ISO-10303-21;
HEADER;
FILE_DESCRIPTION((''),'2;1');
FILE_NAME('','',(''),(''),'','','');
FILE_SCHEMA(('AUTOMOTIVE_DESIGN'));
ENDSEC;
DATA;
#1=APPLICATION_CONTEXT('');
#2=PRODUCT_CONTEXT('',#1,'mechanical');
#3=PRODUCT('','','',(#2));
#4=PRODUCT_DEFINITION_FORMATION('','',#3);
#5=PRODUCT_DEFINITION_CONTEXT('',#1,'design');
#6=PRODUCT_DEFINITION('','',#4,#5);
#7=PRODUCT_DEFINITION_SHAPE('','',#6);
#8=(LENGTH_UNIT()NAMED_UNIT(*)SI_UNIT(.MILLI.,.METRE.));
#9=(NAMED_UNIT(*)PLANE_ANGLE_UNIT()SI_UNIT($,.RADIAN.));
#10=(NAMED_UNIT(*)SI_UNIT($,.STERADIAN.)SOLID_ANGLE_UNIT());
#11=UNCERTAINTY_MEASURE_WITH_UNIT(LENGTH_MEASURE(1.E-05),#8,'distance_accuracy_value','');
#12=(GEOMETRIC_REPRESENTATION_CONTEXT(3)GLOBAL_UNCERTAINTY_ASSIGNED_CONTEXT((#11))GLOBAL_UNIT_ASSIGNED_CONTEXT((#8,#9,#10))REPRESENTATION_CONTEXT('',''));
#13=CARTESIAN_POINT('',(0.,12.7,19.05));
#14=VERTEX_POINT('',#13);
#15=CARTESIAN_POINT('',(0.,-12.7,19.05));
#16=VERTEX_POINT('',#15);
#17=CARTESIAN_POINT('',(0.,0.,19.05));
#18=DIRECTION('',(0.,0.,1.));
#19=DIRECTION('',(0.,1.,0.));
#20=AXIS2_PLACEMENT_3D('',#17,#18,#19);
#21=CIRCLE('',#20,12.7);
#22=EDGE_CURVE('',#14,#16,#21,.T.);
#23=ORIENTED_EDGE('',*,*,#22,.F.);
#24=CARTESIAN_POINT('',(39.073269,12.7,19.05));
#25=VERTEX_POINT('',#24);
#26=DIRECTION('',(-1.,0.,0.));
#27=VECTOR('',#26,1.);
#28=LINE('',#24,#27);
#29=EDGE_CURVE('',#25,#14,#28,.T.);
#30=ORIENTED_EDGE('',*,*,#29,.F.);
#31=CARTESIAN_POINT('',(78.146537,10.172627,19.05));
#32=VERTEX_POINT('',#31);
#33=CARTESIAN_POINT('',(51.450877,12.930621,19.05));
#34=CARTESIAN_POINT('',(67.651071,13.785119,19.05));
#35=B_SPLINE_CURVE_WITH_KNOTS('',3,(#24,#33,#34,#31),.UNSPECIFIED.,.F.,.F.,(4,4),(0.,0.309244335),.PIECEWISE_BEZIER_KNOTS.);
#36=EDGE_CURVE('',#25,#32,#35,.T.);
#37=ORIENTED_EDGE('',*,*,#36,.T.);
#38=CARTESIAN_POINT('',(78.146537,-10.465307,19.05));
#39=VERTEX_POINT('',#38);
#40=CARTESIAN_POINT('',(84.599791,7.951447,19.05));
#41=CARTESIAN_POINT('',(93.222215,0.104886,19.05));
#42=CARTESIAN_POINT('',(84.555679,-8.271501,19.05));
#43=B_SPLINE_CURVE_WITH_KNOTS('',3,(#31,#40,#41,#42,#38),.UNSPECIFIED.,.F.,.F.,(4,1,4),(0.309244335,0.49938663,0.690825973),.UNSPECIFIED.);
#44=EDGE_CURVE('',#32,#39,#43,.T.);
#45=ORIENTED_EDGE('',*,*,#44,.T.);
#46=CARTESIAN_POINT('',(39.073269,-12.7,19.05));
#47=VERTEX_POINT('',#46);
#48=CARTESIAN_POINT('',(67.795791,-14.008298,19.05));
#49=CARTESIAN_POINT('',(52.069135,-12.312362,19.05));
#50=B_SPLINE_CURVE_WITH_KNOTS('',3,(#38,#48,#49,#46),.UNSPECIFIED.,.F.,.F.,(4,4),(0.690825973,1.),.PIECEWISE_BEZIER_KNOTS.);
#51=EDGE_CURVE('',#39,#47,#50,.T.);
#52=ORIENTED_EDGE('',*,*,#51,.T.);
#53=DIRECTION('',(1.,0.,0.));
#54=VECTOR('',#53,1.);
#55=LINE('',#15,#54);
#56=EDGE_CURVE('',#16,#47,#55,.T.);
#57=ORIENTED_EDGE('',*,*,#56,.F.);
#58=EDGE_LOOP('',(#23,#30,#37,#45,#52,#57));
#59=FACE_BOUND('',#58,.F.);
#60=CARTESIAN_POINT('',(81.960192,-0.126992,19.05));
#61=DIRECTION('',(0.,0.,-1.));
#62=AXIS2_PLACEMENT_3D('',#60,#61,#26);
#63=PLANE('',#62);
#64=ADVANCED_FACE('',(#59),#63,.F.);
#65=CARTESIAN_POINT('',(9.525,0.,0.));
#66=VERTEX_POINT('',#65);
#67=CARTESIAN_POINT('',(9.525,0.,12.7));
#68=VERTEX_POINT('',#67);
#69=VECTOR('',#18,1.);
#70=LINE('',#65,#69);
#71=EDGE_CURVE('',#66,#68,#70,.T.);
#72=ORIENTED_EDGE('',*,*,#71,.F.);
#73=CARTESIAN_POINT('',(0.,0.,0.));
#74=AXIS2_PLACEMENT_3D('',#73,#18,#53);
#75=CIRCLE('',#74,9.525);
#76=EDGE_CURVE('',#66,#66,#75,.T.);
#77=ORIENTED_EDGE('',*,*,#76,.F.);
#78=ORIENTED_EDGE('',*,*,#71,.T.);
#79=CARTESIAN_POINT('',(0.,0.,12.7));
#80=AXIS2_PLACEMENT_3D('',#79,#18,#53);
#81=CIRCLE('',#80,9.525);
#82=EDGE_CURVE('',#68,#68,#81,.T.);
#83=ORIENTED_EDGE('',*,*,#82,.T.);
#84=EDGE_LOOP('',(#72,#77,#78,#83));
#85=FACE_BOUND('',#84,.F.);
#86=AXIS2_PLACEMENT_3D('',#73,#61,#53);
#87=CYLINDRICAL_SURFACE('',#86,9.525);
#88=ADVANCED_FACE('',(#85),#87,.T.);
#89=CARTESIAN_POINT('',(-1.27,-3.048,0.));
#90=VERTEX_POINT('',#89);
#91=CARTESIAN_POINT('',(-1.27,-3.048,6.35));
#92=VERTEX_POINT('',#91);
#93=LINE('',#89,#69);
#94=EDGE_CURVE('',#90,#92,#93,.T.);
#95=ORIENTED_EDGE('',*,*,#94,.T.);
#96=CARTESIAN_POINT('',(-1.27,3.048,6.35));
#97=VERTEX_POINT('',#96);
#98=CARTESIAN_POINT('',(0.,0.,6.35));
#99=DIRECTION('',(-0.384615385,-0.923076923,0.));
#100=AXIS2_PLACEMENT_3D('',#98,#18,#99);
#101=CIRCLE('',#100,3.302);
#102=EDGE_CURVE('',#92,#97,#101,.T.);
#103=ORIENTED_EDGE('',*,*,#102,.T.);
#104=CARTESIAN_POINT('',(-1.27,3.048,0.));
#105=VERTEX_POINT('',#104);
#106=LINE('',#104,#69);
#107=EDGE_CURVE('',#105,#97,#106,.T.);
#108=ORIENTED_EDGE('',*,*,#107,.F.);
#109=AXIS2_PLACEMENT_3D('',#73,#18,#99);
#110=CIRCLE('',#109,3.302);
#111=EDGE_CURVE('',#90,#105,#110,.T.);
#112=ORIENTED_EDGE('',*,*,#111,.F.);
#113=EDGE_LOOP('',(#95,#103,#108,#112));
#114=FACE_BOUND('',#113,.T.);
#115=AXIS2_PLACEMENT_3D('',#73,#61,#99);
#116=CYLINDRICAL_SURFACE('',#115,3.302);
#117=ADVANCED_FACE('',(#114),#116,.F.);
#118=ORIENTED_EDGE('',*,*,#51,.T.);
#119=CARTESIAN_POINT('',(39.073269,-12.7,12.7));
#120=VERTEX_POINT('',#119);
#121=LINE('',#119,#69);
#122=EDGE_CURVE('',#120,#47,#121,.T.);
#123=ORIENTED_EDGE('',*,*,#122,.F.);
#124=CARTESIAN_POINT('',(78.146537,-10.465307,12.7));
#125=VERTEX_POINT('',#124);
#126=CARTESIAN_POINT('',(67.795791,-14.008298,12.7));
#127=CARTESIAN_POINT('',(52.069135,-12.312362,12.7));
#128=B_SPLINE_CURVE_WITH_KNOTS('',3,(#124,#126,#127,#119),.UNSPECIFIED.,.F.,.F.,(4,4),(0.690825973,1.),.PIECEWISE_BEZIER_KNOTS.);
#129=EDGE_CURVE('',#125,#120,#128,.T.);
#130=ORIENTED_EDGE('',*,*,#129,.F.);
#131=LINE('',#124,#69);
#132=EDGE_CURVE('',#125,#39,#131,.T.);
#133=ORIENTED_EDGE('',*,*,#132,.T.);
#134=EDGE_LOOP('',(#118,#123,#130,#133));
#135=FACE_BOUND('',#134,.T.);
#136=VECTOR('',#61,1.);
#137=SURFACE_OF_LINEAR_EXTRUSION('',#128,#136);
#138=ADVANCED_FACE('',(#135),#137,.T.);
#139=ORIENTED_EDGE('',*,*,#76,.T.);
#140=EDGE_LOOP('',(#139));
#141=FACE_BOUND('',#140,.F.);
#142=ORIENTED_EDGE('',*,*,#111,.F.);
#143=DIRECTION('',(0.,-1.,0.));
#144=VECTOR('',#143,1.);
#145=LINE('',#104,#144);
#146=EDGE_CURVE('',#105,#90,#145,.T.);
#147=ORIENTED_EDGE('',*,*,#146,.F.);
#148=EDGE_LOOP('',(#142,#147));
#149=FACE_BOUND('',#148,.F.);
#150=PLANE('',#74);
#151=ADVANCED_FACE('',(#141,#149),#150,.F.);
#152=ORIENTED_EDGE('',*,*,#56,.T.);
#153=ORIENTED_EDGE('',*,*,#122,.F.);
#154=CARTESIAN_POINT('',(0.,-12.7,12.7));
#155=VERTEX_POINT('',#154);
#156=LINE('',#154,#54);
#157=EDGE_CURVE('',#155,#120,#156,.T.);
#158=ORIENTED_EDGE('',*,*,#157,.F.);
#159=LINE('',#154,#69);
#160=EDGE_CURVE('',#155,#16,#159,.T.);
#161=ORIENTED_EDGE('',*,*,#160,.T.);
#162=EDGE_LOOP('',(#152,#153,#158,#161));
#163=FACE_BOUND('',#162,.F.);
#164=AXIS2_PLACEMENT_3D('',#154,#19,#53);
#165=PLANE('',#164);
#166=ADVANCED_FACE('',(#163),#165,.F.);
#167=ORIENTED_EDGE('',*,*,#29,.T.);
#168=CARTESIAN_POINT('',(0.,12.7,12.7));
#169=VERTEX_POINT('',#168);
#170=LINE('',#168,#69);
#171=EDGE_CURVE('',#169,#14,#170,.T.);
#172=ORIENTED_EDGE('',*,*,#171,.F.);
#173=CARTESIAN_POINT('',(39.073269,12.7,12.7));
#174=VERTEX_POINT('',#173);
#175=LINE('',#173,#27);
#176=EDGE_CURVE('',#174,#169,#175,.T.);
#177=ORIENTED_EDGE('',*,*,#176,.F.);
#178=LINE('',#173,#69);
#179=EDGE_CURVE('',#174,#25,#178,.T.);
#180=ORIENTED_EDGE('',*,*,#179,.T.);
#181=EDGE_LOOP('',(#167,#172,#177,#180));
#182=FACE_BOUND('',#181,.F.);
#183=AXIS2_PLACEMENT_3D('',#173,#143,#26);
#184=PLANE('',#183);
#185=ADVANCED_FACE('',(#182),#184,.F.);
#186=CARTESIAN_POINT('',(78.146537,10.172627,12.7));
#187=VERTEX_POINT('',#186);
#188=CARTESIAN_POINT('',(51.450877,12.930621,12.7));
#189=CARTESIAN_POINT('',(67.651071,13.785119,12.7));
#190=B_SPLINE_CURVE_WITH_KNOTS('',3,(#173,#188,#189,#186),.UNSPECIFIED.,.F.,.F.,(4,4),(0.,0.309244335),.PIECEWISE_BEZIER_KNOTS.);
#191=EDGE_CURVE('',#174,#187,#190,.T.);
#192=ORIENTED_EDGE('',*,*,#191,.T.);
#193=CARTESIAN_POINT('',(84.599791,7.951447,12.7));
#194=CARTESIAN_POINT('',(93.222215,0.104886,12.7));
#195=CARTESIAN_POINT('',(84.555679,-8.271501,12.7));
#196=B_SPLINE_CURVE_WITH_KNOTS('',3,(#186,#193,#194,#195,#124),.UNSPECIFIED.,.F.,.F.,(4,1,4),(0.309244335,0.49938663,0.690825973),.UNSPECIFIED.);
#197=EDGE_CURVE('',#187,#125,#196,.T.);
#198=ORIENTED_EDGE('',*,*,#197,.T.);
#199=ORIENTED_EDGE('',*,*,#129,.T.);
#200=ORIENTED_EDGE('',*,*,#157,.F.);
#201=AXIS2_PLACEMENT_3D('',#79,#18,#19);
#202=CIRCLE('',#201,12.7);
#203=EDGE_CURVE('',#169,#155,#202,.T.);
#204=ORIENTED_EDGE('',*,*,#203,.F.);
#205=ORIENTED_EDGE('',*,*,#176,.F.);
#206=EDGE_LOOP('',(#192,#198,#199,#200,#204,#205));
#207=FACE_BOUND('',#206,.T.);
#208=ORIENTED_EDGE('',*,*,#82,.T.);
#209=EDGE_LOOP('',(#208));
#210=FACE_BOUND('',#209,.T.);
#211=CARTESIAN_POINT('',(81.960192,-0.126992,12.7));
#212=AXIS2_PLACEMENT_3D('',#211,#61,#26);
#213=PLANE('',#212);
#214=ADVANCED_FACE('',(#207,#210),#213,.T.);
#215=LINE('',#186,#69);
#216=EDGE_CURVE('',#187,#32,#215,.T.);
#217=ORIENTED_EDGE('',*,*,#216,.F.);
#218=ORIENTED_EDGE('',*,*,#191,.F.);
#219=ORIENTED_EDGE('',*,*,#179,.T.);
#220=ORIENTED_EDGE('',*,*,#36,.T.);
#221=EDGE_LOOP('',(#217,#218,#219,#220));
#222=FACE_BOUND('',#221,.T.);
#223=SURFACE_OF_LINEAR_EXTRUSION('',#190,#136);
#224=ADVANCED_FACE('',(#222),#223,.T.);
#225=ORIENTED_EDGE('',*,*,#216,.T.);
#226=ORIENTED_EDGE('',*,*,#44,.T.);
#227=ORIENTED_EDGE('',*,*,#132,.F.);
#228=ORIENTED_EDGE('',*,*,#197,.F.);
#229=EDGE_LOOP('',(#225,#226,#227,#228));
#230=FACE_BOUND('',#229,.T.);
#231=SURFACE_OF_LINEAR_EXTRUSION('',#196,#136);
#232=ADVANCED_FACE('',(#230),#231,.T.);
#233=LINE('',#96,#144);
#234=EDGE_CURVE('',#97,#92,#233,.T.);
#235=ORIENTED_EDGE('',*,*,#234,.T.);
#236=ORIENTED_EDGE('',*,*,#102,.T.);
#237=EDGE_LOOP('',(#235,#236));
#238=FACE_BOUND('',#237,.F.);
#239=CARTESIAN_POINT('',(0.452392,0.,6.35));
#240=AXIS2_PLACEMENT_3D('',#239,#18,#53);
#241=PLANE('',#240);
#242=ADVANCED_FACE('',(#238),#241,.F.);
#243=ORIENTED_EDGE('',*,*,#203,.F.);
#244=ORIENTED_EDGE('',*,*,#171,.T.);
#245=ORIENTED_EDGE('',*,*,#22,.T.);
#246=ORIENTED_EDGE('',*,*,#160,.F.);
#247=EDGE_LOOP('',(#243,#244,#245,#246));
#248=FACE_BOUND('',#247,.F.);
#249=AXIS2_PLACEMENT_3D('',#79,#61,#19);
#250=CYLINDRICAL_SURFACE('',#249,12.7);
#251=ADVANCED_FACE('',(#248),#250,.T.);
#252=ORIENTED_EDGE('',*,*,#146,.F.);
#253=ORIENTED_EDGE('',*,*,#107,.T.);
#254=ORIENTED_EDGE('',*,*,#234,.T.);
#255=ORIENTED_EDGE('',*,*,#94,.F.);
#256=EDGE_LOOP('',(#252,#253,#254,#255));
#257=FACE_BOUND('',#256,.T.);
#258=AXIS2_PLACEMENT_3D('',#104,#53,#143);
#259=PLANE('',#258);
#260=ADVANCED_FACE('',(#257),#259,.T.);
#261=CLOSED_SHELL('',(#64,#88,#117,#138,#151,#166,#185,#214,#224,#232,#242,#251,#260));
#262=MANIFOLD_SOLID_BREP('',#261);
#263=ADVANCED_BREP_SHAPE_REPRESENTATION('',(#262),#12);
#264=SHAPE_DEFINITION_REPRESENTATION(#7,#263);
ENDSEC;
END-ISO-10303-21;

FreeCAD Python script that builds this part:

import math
import FreeCAD as App
import Part
import Sketcher
Q = App.Units.Quantity

doc = App.newDocument("Part")
body = doc.addObject("PartDesign::Body", "Body")

# Sketch on XY plane
sketch1 = body.newObject("Sketcher::SketchObject", "Sketch")
sketch1.AttachmentSupport = (doc.getObject("XY_Plane"), [""])
sketch1.MapMode = "FlatFace"
sketch1.addGeometry(Part.Circle(App.Vector(0, 0, 0), App.Vector(0, 0, 1), 9.525), False)
sketch1.addConstraint([
    Sketcher.Constraint("Coincident", 0, 3, -1, 1),
    Sketcher.Constraint("Diameter", 0, Q("0.75 in")),
])
pad1 = body.newObject("PartDesign::Pad", "Pad")
pad1.Profile = sketch1
pad1.Length = Q("0.5 in")

# Sketch on XY plane
sketch2 = body.newObject("Sketcher::SketchObject", "Sketch001")
sketch2.AttachmentSupport = (doc.getObject("XY_Plane"), [""])
sketch2.MapMode = "FlatFace"
sketch2.addGeometry([
    Part.LineSegment(App.Vector(-1.27, 3.048, 0), App.Vector(-1.27, -3.048, 0)),
    Part.ArcOfCircle(Part.Circle(App.Vector(0, 0, 0), App.Vector(0, 0, 1), 3.302), math.radians(-112.619865), math.radians(112.619865)),
], False)
sketch2.addConstraint([
    Sketcher.Constraint("Coincident", 0, 1, 1, 2),
    Sketcher.Constraint("Coincident", 1, 1, 0, 2),
    Sketcher.Constraint("Vertical", 0),
    Sketcher.Constraint("Coincident", 1, 3, -1, 1),
    Sketcher.Constraint("Radius", 1, Q("0.13 in")),
    Sketcher.Constraint("DistanceY", 0, 2, 0, 1, Q("0.24 in")),
])
pocket1 = body.newObject("PartDesign::Pocket", "Pocket")
pocket1.Profile = sketch2
pocket1.Length = Q("0.25 in")
pocket1.Reversed = True

# Sketch on XY plane
sketch3 = body.newObject("Sketcher::SketchObject", "Sketch002")
sketch3.AttachmentSupport = (doc.getObject("XY_Plane"), [""])
sketch3.MapMode = "FlatFace"
sketch3.AttachmentOffset = App.Placement(App.Vector(0, 0, 0.5 * 25.4), App.Rotation())
sketch3.addGeometry([
    Part.BSplineCurve([App.Vector(78.146537, 10.172627, 0), App.Vector(84.599791, 7.951447, 0), App.Vector(93.222215, 0.104886, 0), App.Vector(84.555679, -8.271501, 0), App.Vector(78.146537, -10.465307, 0)], [4, 1, 4], [0.309244335, 0.49938663, 0.690825973], False, 3, [1, 1, 1, 1, 1], False),  # 0
    Part.BSplineCurve([App.Vector(39.073269, 12.7, 0), App.Vector(51.450877, 12.930621, 0), App.Vector(67.651071, 13.785119, 0), App.Vector(78.146537, 10.172627, 0)], [4, 4], [0, 0.309244335], False, 3, [1, 1, 1, 1], False),  # 1
    Part.LineSegment(App.Vector(39.073269, 12.7, 0), App.Vector(0, 12.7, 0)),  # 2
    Part.ArcOfCircle(Part.Circle(App.Vector(0, 0, 0), App.Vector(0, 0, 1), 12.7), math.radians(90), math.radians(270)),  # 3
    Part.LineSegment(App.Vector(0, -12.7, 0), App.Vector(39.073269, -12.7, 0)),  # 4
    Part.BSplineCurve([App.Vector(78.146537, -10.465307, 0), App.Vector(67.795791, -14.008298, 0), App.Vector(52.069135, -12.312362, 0), App.Vector(39.073269, -12.7, 0)], [4, 4], [0.690825973, 1], False, 3, [1, 1, 1, 1], False),  # 5
], False)
sketch3.addConstraint([
    Sketcher.Constraint("Block", 0),
    Sketcher.Constraint("Block", 1),
    Sketcher.Constraint("Block", 5),
    Sketcher.Constraint("Coincident", 1, 1, 2, 1),
    Sketcher.Constraint("Tangent", 2, 2, 3, 1),
    Sketcher.Constraint("Tangent", 3, 2, 4, 1),
    Sketcher.Constraint("Coincident", 4, 2, 5, 2),
    Sketcher.Constraint("Horizontal", 2),
    Sketcher.Constraint("Horizontal", 4),
    Sketcher.Constraint("PointOnObject", 2, 2, -2),
])
pad2 = body.newObject("PartDesign::Pad", "Pad001")
pad2.Profile = sketch3
pad2.Length = Q("0.25 in")

doc.recompute()
